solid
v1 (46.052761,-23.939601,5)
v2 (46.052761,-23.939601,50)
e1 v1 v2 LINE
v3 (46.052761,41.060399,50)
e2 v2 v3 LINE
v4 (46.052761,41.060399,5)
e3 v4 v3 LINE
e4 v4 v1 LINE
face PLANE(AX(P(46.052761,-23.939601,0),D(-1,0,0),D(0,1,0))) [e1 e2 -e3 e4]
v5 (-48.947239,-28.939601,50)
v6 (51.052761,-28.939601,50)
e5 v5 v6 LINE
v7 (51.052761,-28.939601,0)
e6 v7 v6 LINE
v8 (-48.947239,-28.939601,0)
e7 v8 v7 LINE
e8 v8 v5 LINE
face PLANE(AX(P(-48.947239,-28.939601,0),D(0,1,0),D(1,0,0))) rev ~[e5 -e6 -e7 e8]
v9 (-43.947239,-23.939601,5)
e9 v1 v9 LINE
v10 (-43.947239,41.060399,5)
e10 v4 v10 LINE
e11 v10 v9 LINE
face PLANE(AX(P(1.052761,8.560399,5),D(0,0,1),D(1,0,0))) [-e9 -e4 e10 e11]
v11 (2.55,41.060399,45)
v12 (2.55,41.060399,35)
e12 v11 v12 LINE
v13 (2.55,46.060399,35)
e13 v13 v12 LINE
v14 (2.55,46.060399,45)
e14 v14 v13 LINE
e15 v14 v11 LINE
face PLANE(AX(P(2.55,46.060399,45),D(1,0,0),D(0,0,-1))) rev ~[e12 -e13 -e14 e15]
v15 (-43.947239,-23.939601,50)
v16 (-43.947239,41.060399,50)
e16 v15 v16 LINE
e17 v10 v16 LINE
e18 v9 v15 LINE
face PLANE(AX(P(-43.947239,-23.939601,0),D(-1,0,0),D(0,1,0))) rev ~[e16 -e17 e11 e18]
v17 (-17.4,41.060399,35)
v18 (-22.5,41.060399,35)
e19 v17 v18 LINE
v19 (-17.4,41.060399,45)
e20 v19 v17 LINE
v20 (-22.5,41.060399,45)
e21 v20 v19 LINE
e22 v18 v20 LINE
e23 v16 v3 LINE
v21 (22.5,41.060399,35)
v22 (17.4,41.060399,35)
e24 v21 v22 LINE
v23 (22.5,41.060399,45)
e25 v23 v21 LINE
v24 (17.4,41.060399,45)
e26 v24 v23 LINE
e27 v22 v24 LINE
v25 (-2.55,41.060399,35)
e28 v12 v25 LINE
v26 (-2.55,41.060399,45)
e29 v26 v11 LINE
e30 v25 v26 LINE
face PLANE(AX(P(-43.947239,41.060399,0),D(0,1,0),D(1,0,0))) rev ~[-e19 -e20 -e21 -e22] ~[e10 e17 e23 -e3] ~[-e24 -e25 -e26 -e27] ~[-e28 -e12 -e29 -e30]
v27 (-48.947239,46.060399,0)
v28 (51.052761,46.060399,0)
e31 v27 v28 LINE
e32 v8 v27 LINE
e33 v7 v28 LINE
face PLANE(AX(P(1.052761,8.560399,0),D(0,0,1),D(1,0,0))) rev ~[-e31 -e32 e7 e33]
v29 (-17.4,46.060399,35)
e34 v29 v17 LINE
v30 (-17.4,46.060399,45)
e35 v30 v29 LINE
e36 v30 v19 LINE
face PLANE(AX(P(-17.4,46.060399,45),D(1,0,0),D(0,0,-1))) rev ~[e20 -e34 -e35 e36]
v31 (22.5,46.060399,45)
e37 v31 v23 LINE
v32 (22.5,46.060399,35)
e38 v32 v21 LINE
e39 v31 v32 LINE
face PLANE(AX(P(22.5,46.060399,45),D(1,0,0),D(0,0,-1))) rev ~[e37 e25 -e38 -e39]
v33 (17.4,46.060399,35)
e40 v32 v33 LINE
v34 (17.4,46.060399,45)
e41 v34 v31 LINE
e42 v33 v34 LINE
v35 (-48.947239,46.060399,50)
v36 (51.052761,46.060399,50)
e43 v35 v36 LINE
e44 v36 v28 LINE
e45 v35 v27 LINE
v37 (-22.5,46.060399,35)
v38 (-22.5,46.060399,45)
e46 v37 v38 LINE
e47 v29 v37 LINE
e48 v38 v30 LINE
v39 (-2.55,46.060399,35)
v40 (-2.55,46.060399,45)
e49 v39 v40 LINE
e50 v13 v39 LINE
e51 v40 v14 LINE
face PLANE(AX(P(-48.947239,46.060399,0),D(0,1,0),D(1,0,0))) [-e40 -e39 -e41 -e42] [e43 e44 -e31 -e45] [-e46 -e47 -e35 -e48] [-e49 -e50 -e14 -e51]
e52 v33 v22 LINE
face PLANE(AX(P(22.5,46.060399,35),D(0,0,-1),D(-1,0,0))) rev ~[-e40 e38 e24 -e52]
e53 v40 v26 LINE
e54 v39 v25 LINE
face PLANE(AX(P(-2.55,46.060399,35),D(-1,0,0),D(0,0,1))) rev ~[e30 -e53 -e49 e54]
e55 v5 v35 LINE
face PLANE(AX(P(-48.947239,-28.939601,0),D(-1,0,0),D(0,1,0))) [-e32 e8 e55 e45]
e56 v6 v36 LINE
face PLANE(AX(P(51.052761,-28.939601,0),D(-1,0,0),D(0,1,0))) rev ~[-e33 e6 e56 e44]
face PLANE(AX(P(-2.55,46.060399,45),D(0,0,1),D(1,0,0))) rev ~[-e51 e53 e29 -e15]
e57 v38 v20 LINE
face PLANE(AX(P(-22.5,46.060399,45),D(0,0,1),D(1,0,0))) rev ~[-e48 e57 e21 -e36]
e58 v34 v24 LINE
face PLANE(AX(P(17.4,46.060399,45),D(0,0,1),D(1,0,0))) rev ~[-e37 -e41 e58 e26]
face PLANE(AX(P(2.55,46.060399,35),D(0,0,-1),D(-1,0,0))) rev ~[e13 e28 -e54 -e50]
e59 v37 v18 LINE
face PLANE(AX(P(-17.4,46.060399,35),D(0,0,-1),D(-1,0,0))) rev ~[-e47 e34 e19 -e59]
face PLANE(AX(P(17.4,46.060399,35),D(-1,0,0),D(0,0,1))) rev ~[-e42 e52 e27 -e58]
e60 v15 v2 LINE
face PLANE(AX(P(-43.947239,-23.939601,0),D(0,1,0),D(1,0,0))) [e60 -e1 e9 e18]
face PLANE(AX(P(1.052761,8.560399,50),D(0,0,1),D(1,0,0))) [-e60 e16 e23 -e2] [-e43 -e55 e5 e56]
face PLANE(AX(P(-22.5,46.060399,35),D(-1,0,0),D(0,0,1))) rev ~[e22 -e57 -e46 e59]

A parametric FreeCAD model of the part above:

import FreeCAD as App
import Part
import Sketcher
Q = App.Units.Quantity

doc = App.newDocument("Part")
body = doc.addObject("PartDesign::Body", "Body")

# Sketch on XY plane
sketch1 = body.newObject("Sketcher::SketchObject", "Sketch")
sketch1.AttachmentSupport = (doc.getObject("XY_Plane"), [""])
sketch1.MapMode = "FlatFace"
sketch1.addGeometry(Part.LineSegment(App.Vector(-48.947239, 46.060399, 0), App.Vector(-48.947239, -28.939601, 0)), False)
sketch1.addGeometry(Part.LineSegment(App.Vector(-48.947239, -28.939601, 0), App.Vector(51.052761, -28.939601, 0)), False)
sketch1.addGeometry(Part.LineSegment(App.Vector(51.052761, -28.939601, 0), App.Vector(51.052761, 46.060399, 0)), False)
sketch1.addGeometry(Part.LineSegment(App.Vector(51.052761, 46.060399, 0), App.Vector(-48.947239, 46.060399, 0)), False)
sketch1.addConstraint(Sketcher.Constraint("Coincident", 0, 2, 1, 1))
sketch1.addConstraint(Sketcher.Constraint("Coincident", 1, 2, 2, 1))
sketch1.addConstraint(Sketcher.Constraint("Coincident", 2, 2, 3, 1))
sketch1.addConstraint(Sketcher.Constraint("Coincident", 3, 2, 0, 1))
sketch1.addConstraint(Sketcher.Constraint("Vertical", 0))
sketch1.addConstraint(Sketcher.Constraint("Horizontal", 1))
sketch1.addConstraint(Sketcher.Constraint("Vertical", 2))
sketch1.addConstraint(Sketcher.Constraint("Horizontal", 3))
sketch1.addConstraint(Sketcher.Constraint("DistanceX", 1, 1, 1, 2, Q("100 mm")))
sketch1.addConstraint(Sketcher.Constraint("DistanceY", 0, 2, 0, 1, Q("75 mm")))
sketch1.addConstraint(Sketcher.Constraint("DistanceY", 0, 2, -1, 1, Q("28.939601 mm")))
sketch1.addConstraint(Sketcher.Constraint("DistanceX", 0, 2, -1, 1, Q("48.947239 mm")))
pad1 = body.newObject("PartDesign::Pad", "Pad")
pad1.Profile = sketch1
pad1.Length = 5

# Sketch on XY plane
sketch2 = body.newObject("Sketcher::SketchObject", "Sketch001")
sketch2.AttachmentSupport = (doc.getObject("XY_Plane"), [""])
sketch2.MapMode = "FlatFace"
sketch2.addGeometry(Part.LineSegment(App.Vector(-48.947239, 46.060399, 0), App.Vector(-48.947239, -28.939601, 0)), False)
sketch2.addGeometry(Part.LineSegment(App.Vector(-48.947239, -28.939601, 0), App.Vector(51.052761, -28.939601, 0)), False)
sketch2.addGeometry(Part.LineSegment(App.Vector(51.052761, -28.939601, 0), App.Vector(51.052761, 46.060399, 0)), False)
sketch2.addGeometry(Part.LineSegment(App.Vector(51.052761, 46.060399, 0), App.Vector(-48.947239, 46.060399, 0)), False)
sketch2.addGeometry(Part.LineSegment(App.Vector(46.052761, -23.939601, 0), App.Vector(-43.947239, -23.939601, 0)), False)
sketch2.addGeometry(Part.LineSegment(App.Vector(-43.947239, -23.939601, 0), App.Vector(-43.947239, 41.060399, 0)), False)
sketch2.addGeometry(Part.LineSegment(App.Vector(-43.947239, 41.060399, 0), App.Vector(46.052761, 41.060399, 0)), False)
sketch2.addGeometry(Part.LineSegment(App.Vector(46.052761, 41.060399, 0), App.Vector(46.052761, -23.939601, 0)), False)
sketch2.addConstraint(Sketcher.Constraint("Coincident", 0, 2, 1, 1))
sketch2.addConstraint(Sketcher.Constraint("Coincident", 1, 2, 2, 1))
sketch2.addConstraint(Sketcher.Constraint("Coincident", 2, 2, 3, 1))
sketch2.addConstraint(Sketcher.Constraint("Coincident", 3, 2, 0, 1))
sketch2.addConstraint(Sketcher.Constraint("Coincident", 4, 2, 5, 1))
sketch2.addConstraint(Sketcher.Constraint("Coincident", 5, 2, 6, 1))
sketch2.addConstraint(Sketcher.Constraint("Coincident", 6, 2, 7, 1))
sketch2.addConstraint(Sketcher.Constraint("Coincident", 7, 2, 4, 1))
sketch2.addConstraint(Sketcher.Constraint("Vertical", 0))
sketch2.addConstraint(Sketcher.Constraint("Horizontal", 1))
sketch2.addConstraint(Sketcher.Constraint("Vertical", 2))
sketch2.addConstraint(Sketcher.Constraint("Horizontal", 3))
sketch2.addConstraint(Sketcher.Constraint("Horizontal", 4))
sketch2.addConstraint(Sketcher.Constraint("Vertical", 5))
sketch2.addConstraint(Sketcher.Constraint("Horizontal", 6))
sketch2.addConstraint(Sketcher.Constraint("Vertical", 7))
sketch2.addConstraint(Sketcher.Constraint("DistanceX", 1, 1, 1, 2, Q("100 mm")))
sketch2.addConstraint(Sketcher.Constraint("DistanceX", 4, 2, 4, 1, Q("90 mm")))
sketch2.addConstraint(Sketcher.Constraint("DistanceY", 0, 2, 0, 1, Q("75 mm")))
sketch2.addConstraint(Sketcher.Constraint("DistanceY", 5, 1, 5, 2, Q("65 mm")))
sketch2.addConstraint(Sketcher.Constraint("DistanceX", 0, 2, 4, 2, Q("5 mm")))
sketch2.addConstraint(Sketcher.Constraint("DistanceY", 0, 2, 4, 2, Q("5 mm")))
sketch2.addConstraint(Sketcher.Constraint("DistanceY", 0, 2, -1, 1, Q("28.939601 mm")))
sketch2.addConstraint(Sketcher.Constraint("DistanceX", 0, 2, -1, 1, Q("48.947239 mm")))
pad2 = body.newObject("PartDesign::Pad", "Pad001")
pad2.Profile = sketch2
pad2.Length = 50

# Sketch on XZ plane
sketch3 = body.newObject("Sketcher::SketchObject", "Sketch002")
sketch3.AttachmentSupport = (doc.getObject("XZ_Plane"), [""])
sketch3.MapMode = "FlatFace"
sketch3.AttachmentOffset = App.Placement(App.Vector(0, 0, -46.060399), App.Rotation())
sketch3.addGeometry(Part.LineSegment(App.Vector(17.4, 45, 0), App.Vector(22.5, 45, 0)), False)
sketch3.addGeometry(Part.LineSegment(App.Vector(22.5, 45, 0), App.Vector(22.5, 35, 0)), False)
sketch3.addGeometry(Part.LineSegment(App.Vector(22.5, 35, 0), App.Vector(17.4, 35, 0)), False)
sketch3.addGeometry(Part.LineSegment(App.Vector(17.4, 35, 0), App.Vector(17.4, 45, 0)), False)
sketch3.addGeometry(Part.LineSegment(App.Vector(-2.55, 45, 0), App.Vector(2.55, 45, 0)), False)
sketch3.addGeometry(Part.LineSegment(App.Vector(2.55, 45, 0), App.Vector(2.55, 35, 0)), False)
sketch3.addGeometry(Part.LineSegment(App.Vector(2.55, 35, 0), App.Vector(-2.55, 35, 0)), False)
sketch3.addGeometry(Part.LineSegment(App.Vector(-2.55, 35, 0), App.Vector(-2.55, 45, 0)), False)
sketch3.addGeometry(Part.LineSegment(App.Vector(-22.5, 45, 0), App.Vector(-17.4, 45, 0)), False)
sketch3.addGeometry(Part.LineSegment(App.Vector(-17.4, 45, 0), App.Vector(-17.4, 35, 0)), False)
sketch3.addGeometry(Part.LineSegment(App.Vector(-17.4, 35, 0), App.Vector(-22.5, 35, 0)), False)
sketch3.addGeometry(Part.LineSegment(App.Vector(-22.5, 35, 0), App.Vector(-22.5, 45, 0)), False)
sketch3.addConstraint(Sketcher.Constraint("Coincident", 0, 2, 1, 1))
sketch3.addConstraint(Sketcher.Constraint("Coincident", 1, 2, 2, 1))
sketch3.addConstraint(Sketcher.Constraint("Coincident", 2, 2, 3, 1))
sketch3.addConstraint(Sketcher.Constraint("Coincident", 3, 2, 0, 1))
sketch3.addConstraint(Sketcher.Constraint("Coincident", 4, 2, 5, 1))
sketch3.addConstraint(Sketcher.Constraint("Coincident", 5, 2, 6, 1))
sketch3.addConstraint(Sketcher.Constraint("Coincident", 6, 2, 7, 1))
sketch3.addConstraint(Sketcher.Constraint("Coincident", 7, 2, 4, 1))
sketch3.addConstraint(Sketcher.Constraint("Coincident", 8, 2, 9, 1))
sketch3.addConstraint(Sketcher.Constraint("Coincident", 9, 2, 10, 1))
sketch3.addConstraint(Sketcher.Constraint("Coincident", 10, 2, 11, 1))
sketch3.addConstraint(Sketcher.Constraint("Coincident", 11, 2, 8, 1))
sketch3.addConstraint(Sketcher.Constraint("Horizontal", 0))
sketch3.addConstraint(Sketcher.Constraint("Vertical", 1))
sketch3.addConstraint(Sketcher.Constraint("Horizontal", 2))
sketch3.addConstraint(Sketcher.Constraint("Vertical", 3))
sketch3.addConstraint(Sketcher.Constraint("Horizontal", 4))
sketch3.addConstraint(Sketcher.Constraint("Vertical", 5))
sketch3.addConstraint(Sketcher.Constraint("Horizontal", 6))
sketch3.addConstraint(Sketcher.Constraint("Vertical", 7))
sketch3.addConstraint(Sketcher.Constraint("Horizontal", 8))
sketch3.addConstraint(Sketcher.Constraint("Vertical", 9))
sketch3.addConstraint(Sketcher.Constraint("Horizontal", 10))
sketch3.addConstraint(Sketcher.Constraint("Vertical", 11))
sketch3.addConstraint(Sketcher.Constraint("Symmetric", 3, 2, 8, 2, -2))
sketch3.addConstraint(Sketcher.Constraint("Symmetric", 1, 2, 10, 2, -2))
sketch3.addConstraint(Sketcher.Constraint("Horizontal", 3, 2, 4, 2))
sketch3.addConstraint(Sketcher.Constraint("Horizontal", 2, 2, 5, 2))
sketch3.addConstraint(Sketcher.Constraint("Equal", 2, 4))
sketch3.addConstraint(Sketcher.Constraint("DistanceY", 1, 2, 1, 1, Q("10 mm")))
sketch3.addConstraint(Sketcher.Constraint("DistanceX", 0, 1, 0, 2, Q("5.1 mm")))
sketch3.addConstraint(Sketcher.Constraint("DistanceY", -1, 1, 0, 2, Q("45 mm")))
sketch3.addConstraint(Sketcher.Constraint("DistanceX", -1, 1, 0, 2, Q("22.5 mm")))
sketch3.addConstraint(Sketcher.Constraint("DistanceX", -1, 1, 4, 2, Q("2.55 mm")))
pocket1 = body.newObject("PartDesign::Pocket", "Pocket")
pocket1.Profile = sketch3
pocket1.Length = 5
pocket1.Reversed = True

doc.recompute()
